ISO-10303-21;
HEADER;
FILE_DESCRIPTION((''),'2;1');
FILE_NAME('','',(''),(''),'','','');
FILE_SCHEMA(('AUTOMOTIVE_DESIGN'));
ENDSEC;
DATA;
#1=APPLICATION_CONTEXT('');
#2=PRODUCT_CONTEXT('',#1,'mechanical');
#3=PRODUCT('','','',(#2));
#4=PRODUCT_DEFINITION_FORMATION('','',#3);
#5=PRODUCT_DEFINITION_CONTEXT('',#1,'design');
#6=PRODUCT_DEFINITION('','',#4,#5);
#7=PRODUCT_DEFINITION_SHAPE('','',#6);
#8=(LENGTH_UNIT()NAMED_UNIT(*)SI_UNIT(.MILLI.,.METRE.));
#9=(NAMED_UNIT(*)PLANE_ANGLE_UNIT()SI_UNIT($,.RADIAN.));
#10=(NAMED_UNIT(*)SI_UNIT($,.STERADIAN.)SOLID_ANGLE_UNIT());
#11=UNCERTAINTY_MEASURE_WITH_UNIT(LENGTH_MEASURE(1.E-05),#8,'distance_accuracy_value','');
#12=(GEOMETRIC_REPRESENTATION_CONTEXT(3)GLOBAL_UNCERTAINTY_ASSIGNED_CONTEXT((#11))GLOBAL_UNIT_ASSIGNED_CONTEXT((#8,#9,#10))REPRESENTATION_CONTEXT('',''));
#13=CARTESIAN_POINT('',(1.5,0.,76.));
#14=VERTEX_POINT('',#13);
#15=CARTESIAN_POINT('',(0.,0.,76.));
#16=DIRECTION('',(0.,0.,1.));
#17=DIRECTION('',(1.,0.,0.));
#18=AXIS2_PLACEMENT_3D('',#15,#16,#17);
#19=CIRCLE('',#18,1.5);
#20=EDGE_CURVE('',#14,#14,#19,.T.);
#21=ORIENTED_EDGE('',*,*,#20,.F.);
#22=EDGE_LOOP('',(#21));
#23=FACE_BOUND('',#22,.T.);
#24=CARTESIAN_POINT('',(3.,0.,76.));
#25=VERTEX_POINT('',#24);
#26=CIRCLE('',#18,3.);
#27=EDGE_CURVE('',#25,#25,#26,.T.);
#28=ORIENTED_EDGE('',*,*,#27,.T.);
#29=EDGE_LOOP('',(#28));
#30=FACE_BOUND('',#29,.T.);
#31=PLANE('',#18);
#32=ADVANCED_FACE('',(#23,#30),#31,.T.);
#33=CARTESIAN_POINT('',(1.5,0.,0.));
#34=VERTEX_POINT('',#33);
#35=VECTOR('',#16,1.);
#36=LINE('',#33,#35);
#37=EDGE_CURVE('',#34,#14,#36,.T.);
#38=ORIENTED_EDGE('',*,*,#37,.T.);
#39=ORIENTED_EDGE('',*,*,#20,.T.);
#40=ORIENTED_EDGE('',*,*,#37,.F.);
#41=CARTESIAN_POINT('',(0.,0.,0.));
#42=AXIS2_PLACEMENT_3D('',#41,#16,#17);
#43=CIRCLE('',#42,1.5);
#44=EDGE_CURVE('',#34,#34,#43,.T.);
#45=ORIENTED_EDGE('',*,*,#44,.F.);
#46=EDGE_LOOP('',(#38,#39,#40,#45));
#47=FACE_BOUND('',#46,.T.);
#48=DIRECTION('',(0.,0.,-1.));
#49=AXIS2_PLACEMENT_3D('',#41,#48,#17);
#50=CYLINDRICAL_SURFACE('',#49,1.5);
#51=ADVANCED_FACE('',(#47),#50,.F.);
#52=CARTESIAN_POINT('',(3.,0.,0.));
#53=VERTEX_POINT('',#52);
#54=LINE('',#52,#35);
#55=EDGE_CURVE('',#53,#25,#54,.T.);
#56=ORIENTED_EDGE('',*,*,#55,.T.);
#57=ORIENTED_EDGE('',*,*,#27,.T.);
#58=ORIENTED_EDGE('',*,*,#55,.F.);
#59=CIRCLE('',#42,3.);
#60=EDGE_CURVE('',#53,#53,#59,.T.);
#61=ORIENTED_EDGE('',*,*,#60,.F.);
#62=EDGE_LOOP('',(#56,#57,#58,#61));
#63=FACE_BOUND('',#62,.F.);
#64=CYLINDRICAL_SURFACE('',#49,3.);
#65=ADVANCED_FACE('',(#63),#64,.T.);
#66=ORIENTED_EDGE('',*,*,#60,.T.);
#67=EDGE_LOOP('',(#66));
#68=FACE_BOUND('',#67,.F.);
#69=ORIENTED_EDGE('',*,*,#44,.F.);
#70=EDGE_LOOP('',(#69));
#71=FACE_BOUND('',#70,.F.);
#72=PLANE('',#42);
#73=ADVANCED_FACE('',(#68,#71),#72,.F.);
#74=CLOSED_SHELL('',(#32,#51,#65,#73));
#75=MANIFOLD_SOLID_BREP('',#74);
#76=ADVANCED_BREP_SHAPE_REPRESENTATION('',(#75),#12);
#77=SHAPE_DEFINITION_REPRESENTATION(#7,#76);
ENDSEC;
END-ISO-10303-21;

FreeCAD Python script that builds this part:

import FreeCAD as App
import Part
import Sketcher
from FreeCAD import Vector
Q = App.Units.Quantity

doc = App.newDocument("Part")
body = doc.addObject("PartDesign::Body", "Body")

# Sketch on XY plane
sketch1 = body.newObject("Sketcher::SketchObject", "Sketch")
sketch1.AttachmentSupport = (doc.getObject("XY_Plane"), [""])
sketch1.MapMode = "FlatFace"
sketch1.addGeometry([
    Part.Circle(Vector(0, 0, 0), Vector(0, 0, 1), 3),
    Part.Circle(Vector(0, 0, 0), Vector(0, 0, 1), 1.5),
], False)
sketch1.addConstraint([
    Sketcher.Constraint("Coincident", 0, 3, -1, 1),
    Sketcher.Constraint("Coincident", 1, 3, -1, 1),
    Sketcher.Constraint("Diameter", 0, Q("6 mm")),
    Sketcher.Constraint("Diameter", 1, Q("3 mm")),
])
pad1 = body.newObject("PartDesign::Pad", "Pad")
pad1.Profile = sketch1
pad1.Length = 76

doc.recompute()
